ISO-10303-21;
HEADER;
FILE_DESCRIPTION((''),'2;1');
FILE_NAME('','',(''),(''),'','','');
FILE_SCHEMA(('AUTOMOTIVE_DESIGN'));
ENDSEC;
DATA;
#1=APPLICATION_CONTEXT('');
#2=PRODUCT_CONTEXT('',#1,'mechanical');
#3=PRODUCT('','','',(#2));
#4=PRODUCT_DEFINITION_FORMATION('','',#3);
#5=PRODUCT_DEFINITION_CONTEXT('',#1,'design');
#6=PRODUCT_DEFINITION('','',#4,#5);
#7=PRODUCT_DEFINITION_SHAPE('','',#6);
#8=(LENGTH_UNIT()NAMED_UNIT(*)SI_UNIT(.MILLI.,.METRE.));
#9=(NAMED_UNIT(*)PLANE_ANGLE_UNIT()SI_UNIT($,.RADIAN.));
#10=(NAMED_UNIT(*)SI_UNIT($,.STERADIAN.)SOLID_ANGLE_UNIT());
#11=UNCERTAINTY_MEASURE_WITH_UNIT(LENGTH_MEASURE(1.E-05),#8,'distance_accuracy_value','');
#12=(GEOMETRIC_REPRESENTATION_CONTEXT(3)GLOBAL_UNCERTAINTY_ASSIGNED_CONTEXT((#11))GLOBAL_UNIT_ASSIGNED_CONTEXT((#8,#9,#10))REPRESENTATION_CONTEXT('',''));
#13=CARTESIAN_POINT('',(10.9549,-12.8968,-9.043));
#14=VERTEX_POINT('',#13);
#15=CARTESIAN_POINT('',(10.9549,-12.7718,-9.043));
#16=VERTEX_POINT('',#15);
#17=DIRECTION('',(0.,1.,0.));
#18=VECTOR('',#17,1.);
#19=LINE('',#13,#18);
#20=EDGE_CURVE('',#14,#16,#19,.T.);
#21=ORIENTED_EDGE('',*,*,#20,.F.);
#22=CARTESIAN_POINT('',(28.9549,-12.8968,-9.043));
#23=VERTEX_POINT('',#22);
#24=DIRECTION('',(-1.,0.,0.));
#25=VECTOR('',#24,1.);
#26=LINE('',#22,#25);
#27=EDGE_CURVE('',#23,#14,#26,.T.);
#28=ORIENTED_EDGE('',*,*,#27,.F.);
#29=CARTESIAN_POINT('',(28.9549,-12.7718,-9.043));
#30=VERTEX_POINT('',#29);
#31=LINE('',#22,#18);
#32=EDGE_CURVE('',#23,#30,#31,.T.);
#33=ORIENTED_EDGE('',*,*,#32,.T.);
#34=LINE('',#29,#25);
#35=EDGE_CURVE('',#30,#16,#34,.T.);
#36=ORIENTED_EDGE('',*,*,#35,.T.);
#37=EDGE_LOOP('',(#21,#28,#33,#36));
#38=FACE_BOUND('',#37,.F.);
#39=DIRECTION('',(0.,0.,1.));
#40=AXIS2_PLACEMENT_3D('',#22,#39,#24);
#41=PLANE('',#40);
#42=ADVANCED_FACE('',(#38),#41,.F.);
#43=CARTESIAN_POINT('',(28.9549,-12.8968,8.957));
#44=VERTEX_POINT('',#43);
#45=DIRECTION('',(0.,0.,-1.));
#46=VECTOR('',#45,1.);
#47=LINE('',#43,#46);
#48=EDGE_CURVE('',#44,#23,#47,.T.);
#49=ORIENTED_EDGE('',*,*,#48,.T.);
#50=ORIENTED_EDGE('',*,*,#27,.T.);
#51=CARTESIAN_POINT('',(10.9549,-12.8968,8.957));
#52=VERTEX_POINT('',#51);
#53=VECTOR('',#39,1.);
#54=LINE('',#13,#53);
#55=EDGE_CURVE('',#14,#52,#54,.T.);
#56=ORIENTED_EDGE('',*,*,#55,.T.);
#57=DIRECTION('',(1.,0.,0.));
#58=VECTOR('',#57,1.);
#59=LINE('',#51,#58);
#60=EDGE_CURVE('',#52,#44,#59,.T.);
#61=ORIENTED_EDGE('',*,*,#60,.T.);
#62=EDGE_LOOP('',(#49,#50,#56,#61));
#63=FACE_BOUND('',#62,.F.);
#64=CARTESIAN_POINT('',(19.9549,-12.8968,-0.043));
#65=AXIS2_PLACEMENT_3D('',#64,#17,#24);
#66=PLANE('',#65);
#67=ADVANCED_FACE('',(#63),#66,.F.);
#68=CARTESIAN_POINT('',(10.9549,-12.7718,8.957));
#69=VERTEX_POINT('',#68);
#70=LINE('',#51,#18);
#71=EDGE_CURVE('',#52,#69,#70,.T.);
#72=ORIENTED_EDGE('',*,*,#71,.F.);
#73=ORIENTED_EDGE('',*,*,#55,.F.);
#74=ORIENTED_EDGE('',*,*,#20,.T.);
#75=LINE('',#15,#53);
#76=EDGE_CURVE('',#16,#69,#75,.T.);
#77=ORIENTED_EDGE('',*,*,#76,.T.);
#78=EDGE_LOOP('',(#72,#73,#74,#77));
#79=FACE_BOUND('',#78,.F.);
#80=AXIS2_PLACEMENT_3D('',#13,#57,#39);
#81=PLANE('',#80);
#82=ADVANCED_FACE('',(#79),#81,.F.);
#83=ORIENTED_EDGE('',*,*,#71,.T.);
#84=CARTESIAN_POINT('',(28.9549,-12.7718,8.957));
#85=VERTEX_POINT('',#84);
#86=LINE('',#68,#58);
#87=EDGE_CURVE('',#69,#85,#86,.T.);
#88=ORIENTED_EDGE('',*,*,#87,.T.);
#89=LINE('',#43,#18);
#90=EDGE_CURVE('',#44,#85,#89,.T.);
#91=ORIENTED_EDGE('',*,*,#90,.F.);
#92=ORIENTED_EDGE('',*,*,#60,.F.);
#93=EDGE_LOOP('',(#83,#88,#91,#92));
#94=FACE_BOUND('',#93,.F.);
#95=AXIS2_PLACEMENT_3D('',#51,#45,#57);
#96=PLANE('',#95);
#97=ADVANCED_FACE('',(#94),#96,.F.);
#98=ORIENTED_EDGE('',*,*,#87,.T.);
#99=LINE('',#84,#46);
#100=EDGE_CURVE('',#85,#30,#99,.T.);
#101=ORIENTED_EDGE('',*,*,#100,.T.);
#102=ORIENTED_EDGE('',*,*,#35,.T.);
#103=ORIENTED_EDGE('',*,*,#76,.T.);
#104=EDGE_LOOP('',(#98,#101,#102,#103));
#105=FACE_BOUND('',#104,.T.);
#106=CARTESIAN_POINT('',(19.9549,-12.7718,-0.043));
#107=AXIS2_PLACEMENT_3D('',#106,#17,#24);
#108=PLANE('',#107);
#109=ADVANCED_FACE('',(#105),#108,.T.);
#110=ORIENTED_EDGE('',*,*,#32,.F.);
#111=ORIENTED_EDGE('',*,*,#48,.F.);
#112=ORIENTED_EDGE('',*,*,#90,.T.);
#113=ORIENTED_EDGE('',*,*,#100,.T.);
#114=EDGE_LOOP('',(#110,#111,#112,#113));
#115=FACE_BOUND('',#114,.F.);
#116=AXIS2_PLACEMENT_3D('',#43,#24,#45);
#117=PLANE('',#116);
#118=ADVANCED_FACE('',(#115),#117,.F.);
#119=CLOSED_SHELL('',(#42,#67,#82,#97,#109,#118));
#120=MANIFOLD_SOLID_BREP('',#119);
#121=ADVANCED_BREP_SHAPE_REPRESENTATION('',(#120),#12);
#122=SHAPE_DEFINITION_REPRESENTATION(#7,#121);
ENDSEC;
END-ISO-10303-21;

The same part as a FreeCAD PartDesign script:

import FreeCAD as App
import Part
import Sketcher
from FreeCAD import Vector


def add_polygon(sketch, points):
    """Adds a closed chain of lines whose ends are joined by coincident constraints."""
    first, n = sketch.GeometryCount, len(points)
    for a, b in zip(points, points[1:] + points[:1]):
        sketch.addGeometry(Part.LineSegment(App.Vector(*a, 0), App.Vector(*b, 0)), False)
    for i in range(n):
        sketch.addConstraint(Sketcher.Constraint("Coincident", first + i, 2, first + (i + 1) % n, 1))

doc = App.newDocument("Part")
body = doc.addObject("PartDesign::Body", "Body")

# Sketch on XZ plane
sketch1 = body.newObject("Sketcher::SketchObject", "Sketch")
sketch1.AttachmentSupport = (doc.getObject("XZ_Plane"), [""])
sketch1.MapMode = "FlatFace"
sketch1.AttachmentOffset = App.Placement(Vector(0, 0, 12.8968), App.Rotation())
add_polygon(sketch1, [(28.9549, 8.957), (28.9549, -9.043), (10.9549, -9.043), (10.9549, 8.957)])  # lines 0-3
sketch1.addConstraint([
    Sketcher.Constraint("Vertical", 0),
    Sketcher.Constraint("Horizontal", 1),
    Sketcher.Constraint("Vertical", 2),
    Sketcher.Constraint("Horizontal", 3),
    Sketcher.Constraint("Equal", 3, 0),
    Sketcher.Constraint("DistanceX", 1, 2, 1, 1, 18.0),
    Sketcher.Constraint("DistanceX", -1, 1, 0, 2, 28.955),
    Sketcher.Constraint("DistanceY", 0, 2, -1, 1, 9.043),
])
pad1 = body.newObject("PartDesign::Pad", "Pad")
pad1.Profile = sketch1
pad1.Length = 0.125
pad1.Reversed = True

doc.recompute()
